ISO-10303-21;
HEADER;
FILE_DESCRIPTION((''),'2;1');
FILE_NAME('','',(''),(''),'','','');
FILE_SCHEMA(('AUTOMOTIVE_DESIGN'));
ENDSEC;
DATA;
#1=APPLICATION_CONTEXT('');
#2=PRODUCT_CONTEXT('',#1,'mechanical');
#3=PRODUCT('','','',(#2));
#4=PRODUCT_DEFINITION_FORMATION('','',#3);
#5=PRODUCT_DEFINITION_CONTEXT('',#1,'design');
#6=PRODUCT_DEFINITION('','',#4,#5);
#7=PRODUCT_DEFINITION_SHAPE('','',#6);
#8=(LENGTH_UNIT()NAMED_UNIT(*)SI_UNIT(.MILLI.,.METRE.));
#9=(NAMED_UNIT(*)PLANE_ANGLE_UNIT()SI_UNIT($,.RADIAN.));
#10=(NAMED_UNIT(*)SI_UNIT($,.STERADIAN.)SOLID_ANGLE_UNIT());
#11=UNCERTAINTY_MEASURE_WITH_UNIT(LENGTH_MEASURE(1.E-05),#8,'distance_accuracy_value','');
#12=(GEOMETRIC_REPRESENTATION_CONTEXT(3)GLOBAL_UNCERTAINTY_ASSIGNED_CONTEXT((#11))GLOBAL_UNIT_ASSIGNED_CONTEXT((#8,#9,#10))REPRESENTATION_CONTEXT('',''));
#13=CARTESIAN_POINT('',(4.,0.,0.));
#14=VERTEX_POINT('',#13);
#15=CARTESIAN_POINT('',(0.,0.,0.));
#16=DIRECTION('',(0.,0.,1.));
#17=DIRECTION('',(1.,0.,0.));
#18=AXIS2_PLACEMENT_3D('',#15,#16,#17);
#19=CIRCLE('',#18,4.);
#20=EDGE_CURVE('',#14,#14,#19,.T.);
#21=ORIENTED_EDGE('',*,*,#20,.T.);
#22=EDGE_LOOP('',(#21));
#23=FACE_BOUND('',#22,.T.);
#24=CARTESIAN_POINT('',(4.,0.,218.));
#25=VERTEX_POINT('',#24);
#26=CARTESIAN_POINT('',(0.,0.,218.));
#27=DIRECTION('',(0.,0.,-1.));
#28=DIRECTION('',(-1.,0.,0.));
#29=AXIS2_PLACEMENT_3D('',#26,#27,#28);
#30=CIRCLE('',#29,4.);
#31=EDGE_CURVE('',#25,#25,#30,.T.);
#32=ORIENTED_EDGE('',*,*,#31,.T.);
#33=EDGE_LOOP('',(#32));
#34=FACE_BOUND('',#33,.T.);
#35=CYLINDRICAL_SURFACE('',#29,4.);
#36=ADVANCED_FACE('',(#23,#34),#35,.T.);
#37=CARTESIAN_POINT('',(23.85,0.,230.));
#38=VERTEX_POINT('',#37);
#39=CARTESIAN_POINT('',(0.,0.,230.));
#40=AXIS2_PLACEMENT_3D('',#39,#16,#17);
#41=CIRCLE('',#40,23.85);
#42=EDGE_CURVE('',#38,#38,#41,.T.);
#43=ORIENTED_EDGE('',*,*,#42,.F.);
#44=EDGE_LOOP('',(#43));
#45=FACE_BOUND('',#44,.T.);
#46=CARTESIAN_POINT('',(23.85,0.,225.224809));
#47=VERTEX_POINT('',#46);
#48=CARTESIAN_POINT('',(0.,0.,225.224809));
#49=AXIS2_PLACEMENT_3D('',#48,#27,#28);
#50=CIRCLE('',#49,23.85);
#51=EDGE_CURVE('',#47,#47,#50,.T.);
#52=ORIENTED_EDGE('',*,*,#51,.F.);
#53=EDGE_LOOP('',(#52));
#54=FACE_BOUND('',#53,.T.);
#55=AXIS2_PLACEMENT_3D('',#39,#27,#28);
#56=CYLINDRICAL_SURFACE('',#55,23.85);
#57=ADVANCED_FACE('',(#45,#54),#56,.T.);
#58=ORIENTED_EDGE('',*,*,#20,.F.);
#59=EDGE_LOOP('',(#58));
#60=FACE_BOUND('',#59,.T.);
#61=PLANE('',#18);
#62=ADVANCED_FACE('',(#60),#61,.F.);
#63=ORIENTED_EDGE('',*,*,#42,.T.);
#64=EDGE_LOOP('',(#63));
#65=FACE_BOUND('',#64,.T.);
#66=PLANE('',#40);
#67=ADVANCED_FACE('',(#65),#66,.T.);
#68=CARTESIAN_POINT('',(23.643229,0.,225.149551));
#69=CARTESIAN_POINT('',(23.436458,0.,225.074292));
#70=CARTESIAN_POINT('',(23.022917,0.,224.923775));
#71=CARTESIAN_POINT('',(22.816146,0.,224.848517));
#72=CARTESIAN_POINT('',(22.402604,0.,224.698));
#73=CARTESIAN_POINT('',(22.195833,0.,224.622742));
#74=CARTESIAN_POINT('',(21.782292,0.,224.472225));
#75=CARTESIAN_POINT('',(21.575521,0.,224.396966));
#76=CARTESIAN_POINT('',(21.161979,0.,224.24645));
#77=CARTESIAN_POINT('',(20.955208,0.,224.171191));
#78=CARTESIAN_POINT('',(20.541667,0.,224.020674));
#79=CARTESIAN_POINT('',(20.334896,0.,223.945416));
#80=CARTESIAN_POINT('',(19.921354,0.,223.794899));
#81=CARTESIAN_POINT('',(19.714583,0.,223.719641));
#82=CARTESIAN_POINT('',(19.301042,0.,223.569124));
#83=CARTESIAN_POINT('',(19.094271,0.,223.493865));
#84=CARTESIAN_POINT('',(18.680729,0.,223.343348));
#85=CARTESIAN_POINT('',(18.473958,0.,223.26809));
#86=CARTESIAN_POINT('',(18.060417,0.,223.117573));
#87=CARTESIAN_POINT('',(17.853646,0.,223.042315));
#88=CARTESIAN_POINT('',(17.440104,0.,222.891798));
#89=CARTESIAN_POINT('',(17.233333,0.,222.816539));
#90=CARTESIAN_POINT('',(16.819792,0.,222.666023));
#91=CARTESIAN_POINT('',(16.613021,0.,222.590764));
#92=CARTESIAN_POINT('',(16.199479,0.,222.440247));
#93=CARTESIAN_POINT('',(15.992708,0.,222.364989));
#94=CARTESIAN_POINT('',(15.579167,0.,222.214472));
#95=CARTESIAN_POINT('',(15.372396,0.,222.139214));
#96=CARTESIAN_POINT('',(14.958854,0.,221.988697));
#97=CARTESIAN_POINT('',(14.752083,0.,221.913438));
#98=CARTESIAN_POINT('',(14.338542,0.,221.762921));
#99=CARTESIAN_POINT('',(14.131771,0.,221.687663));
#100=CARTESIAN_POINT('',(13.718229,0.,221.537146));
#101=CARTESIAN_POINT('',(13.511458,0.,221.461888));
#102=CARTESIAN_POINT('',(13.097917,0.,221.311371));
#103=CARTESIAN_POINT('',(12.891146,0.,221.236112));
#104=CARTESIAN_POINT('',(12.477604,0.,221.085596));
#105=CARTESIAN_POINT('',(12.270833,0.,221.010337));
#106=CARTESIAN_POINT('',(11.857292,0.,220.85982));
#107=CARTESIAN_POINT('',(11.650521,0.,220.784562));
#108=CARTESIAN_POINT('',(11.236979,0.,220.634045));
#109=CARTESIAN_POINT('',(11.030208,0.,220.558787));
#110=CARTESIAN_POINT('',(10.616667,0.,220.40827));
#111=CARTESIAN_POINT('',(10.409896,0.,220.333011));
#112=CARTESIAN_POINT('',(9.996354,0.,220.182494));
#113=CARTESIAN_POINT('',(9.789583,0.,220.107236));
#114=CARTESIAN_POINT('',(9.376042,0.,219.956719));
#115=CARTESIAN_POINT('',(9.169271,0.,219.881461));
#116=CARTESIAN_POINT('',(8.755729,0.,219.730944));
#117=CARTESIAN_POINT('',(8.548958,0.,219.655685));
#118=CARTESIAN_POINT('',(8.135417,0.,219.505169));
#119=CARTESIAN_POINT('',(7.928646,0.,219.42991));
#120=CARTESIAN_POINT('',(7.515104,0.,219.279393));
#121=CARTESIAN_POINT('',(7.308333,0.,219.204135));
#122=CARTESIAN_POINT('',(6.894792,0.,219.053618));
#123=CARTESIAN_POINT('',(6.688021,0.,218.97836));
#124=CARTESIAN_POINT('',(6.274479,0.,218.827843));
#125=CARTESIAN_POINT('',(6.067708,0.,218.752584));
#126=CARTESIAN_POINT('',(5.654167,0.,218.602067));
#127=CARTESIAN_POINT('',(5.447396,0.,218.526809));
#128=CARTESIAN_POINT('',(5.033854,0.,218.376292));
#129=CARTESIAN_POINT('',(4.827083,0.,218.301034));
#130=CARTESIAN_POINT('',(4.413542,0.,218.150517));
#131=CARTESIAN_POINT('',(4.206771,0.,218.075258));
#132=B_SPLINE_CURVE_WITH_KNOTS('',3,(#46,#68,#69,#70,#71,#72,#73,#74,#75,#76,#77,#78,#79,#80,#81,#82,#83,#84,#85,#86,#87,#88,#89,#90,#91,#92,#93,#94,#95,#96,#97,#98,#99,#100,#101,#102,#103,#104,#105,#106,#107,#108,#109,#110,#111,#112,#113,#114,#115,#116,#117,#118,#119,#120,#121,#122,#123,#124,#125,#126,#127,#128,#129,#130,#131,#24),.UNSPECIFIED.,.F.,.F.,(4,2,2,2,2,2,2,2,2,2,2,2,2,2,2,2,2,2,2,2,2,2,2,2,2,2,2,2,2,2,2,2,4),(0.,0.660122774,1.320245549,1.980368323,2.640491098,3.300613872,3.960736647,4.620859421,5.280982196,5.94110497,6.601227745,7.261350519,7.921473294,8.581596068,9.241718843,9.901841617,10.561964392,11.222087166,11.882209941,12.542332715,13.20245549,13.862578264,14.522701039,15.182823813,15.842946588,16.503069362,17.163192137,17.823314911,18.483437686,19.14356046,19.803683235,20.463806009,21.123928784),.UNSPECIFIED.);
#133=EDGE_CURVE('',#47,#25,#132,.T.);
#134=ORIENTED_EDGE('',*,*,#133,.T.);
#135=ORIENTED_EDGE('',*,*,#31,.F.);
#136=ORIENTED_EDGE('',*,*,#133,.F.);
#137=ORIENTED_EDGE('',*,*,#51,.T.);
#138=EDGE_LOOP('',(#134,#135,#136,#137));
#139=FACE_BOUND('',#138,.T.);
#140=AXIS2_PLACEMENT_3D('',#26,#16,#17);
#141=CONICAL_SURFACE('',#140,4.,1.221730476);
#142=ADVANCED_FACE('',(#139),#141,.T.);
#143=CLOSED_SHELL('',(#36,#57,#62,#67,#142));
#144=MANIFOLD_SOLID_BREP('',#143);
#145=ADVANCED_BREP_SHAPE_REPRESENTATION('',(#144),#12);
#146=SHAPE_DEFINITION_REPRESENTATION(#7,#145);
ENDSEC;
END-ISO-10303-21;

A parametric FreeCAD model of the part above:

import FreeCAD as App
import Part
import Sketcher

V = App.Vector
Q = App.Units.Quantity


def add_polygon(sketch, points):
    """Adds a closed chain of lines whose ends are joined by coincident constraints."""
    first, n = sketch.GeometryCount, len(points)
    for a, b in zip(points, points[1:] + points[:1]):
        sketch.addGeometry(Part.LineSegment(App.Vector(*a, 0), App.Vector(*b, 0)), False)
    for i in range(n):
        sketch.addConstraint(Sketcher.Constraint("Coincident", first + i, 2, first + (i + 1) % n, 1))

doc = App.newDocument("Part")
body = doc.addObject("PartDesign::Body", "Body")

# Sketch on XY plane
sketch1 = body.newObject("Sketcher::SketchObject", "Sketch")
sketch1.AttachmentSupport = (doc.getObject("XY_Plane"), [""])
sketch1.MapMode = "FlatFace"
sketch1.addGeometry(Part.Circle(V(0, 0, 0), V(0, 0, 1), 24), False)
sketch1.addConstraint([
    Sketcher.Constraint("Coincident", 0, 3, -1, 1),
    Sketcher.Constraint("Diameter", 0, Q("47.7 mm")),
])
pad1 = body.newObject("PartDesign::Pad", "Pad")
pad1.Profile = sketch1
pad1.Length = 230

# Sketch on XY plane
sketch2 = body.newObject("Sketcher::SketchObject", "Sketch001")
sketch2.AttachmentSupport = (doc.getObject("XY_Plane"), [""])
sketch2.MapMode = "FlatFace"
add_polygon(sketch2, [(-48.8, 48.8), (-48.8, -48.8), (48.8, -48.8), (48.8, 48.8)])  # lines 0-3
sketch2.addGeometry(Part.Circle(V(0, 0, 0), V(0, 0, 1), 4), False)  # 4
sketch2.addConstraint([
    Sketcher.Constraint("Vertical", 0),
    Sketcher.Constraint("Horizontal", 1),
    Sketcher.Constraint("Vertical", 2),
    Sketcher.Constraint("Horizontal", 3),
    Sketcher.Constraint("Coincident", 4, 3, -1, 1),
    Sketcher.Constraint("Symmetric", 0, 2, 2, 2, -1, 1),
    Sketcher.Constraint("Equal", 3, 0),
    Sketcher.Constraint("Diameter", 4, Q("8 mm")),
    Sketcher.Constraint("DistanceX", 1, 1, 1, 2, Q("97.638 mm")),
])
pocket1 = body.newObject("PartDesign::Pocket", "Pocket")
pocket1.Profile = sketch2
pocket1.Length = 218
pocket1.Reversed = True

# Sketch on XZ plane
sketch3 = body.newObject("Sketcher::SketchObject", "Sketch002")
sketch3.AttachmentSupport = (doc.getObject("XZ_Plane"), [""])
sketch3.MapMode = "FlatFace"
add_polygon(sketch3, [(4, 218), (24, 225), (24, 218)])  # lines 0-2
sketch3.addConstraint([
    Sketcher.Constraint("Vertical", 1),
    Sketcher.Constraint("Horizontal", 2),
    Sketcher.Constraint("Angle", 0, Q("20 deg")),
    Sketcher.Constraint("DistanceY", -1, 1, 1, 2, Q("218 mm")),
    Sketcher.Constraint("DistanceX", -1, 1, 2, 2, Q("4 mm")),
    Sketcher.Constraint("DistanceX", 2, 2, 2, 1, Q("19.85 mm")),
])
groove = body.newObject("PartDesign::Groove", "Groove")
groove.Profile = sketch3
groove.ReferenceAxis = (sketch3, ["V_Axis"])
groove.Angle = 360

doc.recompute()
